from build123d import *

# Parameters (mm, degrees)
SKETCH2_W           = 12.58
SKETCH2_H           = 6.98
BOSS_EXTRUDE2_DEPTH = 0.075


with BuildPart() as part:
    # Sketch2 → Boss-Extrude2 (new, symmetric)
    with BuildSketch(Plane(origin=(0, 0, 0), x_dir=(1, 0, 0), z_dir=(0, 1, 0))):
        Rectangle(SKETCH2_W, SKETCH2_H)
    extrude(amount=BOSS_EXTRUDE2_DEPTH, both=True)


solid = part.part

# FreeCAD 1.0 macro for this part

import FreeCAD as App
import Part
import Sketcher

V = App.Vector


def add_polygon(sketch, points):
    """Adds a closed chain of lines whose ends are joined by coincident constraints."""
    first, n = sketch.GeometryCount, len(points)
    for a, b in zip(points, points[1:] + points[:1]):
        sketch.addGeometry(Part.LineSegment(App.Vector(*a, 0), App.Vector(*b, 0)), False)
    for i in range(n):
        sketch.addConstraint(Sketcher.Constraint("Coincident", first + i, 2, first + (i + 1) % n, 1))

doc = App.newDocument("Part")
body = doc.addObject("PartDesign::Body", "Body")

# Sketch on XZ plane
sketch1 = body.newObject("Sketcher::SketchObject", "Sketch")
sketch1.AttachmentSupport = (doc.getObject("XZ_Plane"), [""])
sketch1.MapMode = "FlatFace"
add_polygon(sketch1, [(-6, -3), (-6, 3), (6, 3), (6, -3)])  # lines 0-3
sketch1.addConstraint([
    Sketcher.Constraint("Vertical", 0),
    Sketcher.Constraint("Horizontal", 1),
    Sketcher.Constraint("Vertical", 2),
    Sketcher.Constraint("Horizontal", 3),
    Sketcher.Constraint("Symmetric", 0, 2, 2, 2, -1, 1),
    Sketcher.Constraint("DistanceX", 1, 1, 1, 2, 12.58),
    Sketcher.Constraint("DistanceY", 0, 1, 0, 2, 6.98),
])
pad1 = body.newObject("PartDesign::Pad", "Pad")
pad1.Profile = sketch1
pad1.Length = 0.15
pad1.Midplane = True

doc.recompute()
